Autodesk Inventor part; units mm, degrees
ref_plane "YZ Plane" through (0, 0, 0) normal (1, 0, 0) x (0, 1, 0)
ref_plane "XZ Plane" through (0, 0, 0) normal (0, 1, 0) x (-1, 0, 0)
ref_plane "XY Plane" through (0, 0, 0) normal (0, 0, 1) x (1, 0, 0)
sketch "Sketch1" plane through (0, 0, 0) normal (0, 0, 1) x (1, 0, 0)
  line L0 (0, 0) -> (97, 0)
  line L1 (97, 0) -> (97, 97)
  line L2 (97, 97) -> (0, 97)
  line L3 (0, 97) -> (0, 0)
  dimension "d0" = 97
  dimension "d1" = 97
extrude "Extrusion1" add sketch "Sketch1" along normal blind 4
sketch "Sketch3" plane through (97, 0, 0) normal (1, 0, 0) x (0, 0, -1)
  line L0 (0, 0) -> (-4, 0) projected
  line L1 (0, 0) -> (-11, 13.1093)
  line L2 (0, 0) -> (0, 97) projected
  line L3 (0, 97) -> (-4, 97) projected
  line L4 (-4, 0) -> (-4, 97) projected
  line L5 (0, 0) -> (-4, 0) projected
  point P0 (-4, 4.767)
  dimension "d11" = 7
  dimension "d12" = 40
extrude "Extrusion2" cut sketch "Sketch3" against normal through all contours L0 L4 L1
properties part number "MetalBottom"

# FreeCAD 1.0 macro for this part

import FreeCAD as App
import Part
import Sketcher

V = App.Vector
Q = App.Units.Quantity


def add_polygon(sketch, points):
    """Adds a closed chain of lines whose ends are joined by coincident constraints."""
    first, n = sketch.GeometryCount, len(points)
    for a, b in zip(points, points[1:] + points[:1]):
        sketch.addGeometry(Part.LineSegment(App.Vector(*a, 0), App.Vector(*b, 0)), False)
    for i in range(n):
        sketch.addConstraint(Sketcher.Constraint("Coincident", first + i, 2, first + (i + 1) % n, 1))

doc = App.newDocument("Part")
body = doc.addObject("PartDesign::Body", "Body")

# Sketch on XY plane
sketch1 = body.newObject("Sketcher::SketchObject", "Sketch")
sketch1.AttachmentSupport = (doc.getObject("XY_Plane"), [""])
sketch1.MapMode = "FlatFace"
add_polygon(sketch1, [(0, 97), (0, 0), (97, 0), (97, 97)])  # lines 0-3
sketch1.addConstraint([
    Sketcher.Constraint("Vertical", 0),
    Sketcher.Constraint("Horizontal", 1),
    Sketcher.Constraint("Vertical", 2),
    Sketcher.Constraint("Horizontal", 3),
    Sketcher.Constraint("Coincident", 0, 2, -1, 1),
    Sketcher.Constraint("Equal", 3, 0),
    Sketcher.Constraint("DistanceX", 1, 1, 1, 2, Q("97 mm")),
])
pad1 = body.newObject("PartDesign::Pad", "Pad")
pad1.Profile = sketch1
pad1.Length = 4

# Sketch on YZ plane
sketch2 = body.newObject("Sketcher::SketchObject", "Sketch001")
sketch2.AttachmentSupport = (doc.getObject("YZ_Plane"), [""])
sketch2.MapMode = "FlatFace"
sketch2.AttachmentOffset = App.Placement(V(0, 0, 97), App.Rotation())
add_polygon(sketch2, [(0, 4), (0, 0), (4.8, 4)])  # lines 0-2
sketch2.addConstraint([
    Sketcher.Constraint("Vertical", 0),
    Sketcher.Constraint("Horizontal", 2),
    Sketcher.Constraint("Coincident", 0, 2, -1, 1),
    Sketcher.Constraint("Angle", 1, Q("40 deg")),
    Sketcher.Constraint("DistanceY", 0, 2, 0, 1, Q("4 mm")),
])
pocket1 = body.newObject("PartDesign::Pocket", "Pocket")
pocket1.Profile = sketch2
pocket1.Type = "ThroughAll"

doc.recompute()
